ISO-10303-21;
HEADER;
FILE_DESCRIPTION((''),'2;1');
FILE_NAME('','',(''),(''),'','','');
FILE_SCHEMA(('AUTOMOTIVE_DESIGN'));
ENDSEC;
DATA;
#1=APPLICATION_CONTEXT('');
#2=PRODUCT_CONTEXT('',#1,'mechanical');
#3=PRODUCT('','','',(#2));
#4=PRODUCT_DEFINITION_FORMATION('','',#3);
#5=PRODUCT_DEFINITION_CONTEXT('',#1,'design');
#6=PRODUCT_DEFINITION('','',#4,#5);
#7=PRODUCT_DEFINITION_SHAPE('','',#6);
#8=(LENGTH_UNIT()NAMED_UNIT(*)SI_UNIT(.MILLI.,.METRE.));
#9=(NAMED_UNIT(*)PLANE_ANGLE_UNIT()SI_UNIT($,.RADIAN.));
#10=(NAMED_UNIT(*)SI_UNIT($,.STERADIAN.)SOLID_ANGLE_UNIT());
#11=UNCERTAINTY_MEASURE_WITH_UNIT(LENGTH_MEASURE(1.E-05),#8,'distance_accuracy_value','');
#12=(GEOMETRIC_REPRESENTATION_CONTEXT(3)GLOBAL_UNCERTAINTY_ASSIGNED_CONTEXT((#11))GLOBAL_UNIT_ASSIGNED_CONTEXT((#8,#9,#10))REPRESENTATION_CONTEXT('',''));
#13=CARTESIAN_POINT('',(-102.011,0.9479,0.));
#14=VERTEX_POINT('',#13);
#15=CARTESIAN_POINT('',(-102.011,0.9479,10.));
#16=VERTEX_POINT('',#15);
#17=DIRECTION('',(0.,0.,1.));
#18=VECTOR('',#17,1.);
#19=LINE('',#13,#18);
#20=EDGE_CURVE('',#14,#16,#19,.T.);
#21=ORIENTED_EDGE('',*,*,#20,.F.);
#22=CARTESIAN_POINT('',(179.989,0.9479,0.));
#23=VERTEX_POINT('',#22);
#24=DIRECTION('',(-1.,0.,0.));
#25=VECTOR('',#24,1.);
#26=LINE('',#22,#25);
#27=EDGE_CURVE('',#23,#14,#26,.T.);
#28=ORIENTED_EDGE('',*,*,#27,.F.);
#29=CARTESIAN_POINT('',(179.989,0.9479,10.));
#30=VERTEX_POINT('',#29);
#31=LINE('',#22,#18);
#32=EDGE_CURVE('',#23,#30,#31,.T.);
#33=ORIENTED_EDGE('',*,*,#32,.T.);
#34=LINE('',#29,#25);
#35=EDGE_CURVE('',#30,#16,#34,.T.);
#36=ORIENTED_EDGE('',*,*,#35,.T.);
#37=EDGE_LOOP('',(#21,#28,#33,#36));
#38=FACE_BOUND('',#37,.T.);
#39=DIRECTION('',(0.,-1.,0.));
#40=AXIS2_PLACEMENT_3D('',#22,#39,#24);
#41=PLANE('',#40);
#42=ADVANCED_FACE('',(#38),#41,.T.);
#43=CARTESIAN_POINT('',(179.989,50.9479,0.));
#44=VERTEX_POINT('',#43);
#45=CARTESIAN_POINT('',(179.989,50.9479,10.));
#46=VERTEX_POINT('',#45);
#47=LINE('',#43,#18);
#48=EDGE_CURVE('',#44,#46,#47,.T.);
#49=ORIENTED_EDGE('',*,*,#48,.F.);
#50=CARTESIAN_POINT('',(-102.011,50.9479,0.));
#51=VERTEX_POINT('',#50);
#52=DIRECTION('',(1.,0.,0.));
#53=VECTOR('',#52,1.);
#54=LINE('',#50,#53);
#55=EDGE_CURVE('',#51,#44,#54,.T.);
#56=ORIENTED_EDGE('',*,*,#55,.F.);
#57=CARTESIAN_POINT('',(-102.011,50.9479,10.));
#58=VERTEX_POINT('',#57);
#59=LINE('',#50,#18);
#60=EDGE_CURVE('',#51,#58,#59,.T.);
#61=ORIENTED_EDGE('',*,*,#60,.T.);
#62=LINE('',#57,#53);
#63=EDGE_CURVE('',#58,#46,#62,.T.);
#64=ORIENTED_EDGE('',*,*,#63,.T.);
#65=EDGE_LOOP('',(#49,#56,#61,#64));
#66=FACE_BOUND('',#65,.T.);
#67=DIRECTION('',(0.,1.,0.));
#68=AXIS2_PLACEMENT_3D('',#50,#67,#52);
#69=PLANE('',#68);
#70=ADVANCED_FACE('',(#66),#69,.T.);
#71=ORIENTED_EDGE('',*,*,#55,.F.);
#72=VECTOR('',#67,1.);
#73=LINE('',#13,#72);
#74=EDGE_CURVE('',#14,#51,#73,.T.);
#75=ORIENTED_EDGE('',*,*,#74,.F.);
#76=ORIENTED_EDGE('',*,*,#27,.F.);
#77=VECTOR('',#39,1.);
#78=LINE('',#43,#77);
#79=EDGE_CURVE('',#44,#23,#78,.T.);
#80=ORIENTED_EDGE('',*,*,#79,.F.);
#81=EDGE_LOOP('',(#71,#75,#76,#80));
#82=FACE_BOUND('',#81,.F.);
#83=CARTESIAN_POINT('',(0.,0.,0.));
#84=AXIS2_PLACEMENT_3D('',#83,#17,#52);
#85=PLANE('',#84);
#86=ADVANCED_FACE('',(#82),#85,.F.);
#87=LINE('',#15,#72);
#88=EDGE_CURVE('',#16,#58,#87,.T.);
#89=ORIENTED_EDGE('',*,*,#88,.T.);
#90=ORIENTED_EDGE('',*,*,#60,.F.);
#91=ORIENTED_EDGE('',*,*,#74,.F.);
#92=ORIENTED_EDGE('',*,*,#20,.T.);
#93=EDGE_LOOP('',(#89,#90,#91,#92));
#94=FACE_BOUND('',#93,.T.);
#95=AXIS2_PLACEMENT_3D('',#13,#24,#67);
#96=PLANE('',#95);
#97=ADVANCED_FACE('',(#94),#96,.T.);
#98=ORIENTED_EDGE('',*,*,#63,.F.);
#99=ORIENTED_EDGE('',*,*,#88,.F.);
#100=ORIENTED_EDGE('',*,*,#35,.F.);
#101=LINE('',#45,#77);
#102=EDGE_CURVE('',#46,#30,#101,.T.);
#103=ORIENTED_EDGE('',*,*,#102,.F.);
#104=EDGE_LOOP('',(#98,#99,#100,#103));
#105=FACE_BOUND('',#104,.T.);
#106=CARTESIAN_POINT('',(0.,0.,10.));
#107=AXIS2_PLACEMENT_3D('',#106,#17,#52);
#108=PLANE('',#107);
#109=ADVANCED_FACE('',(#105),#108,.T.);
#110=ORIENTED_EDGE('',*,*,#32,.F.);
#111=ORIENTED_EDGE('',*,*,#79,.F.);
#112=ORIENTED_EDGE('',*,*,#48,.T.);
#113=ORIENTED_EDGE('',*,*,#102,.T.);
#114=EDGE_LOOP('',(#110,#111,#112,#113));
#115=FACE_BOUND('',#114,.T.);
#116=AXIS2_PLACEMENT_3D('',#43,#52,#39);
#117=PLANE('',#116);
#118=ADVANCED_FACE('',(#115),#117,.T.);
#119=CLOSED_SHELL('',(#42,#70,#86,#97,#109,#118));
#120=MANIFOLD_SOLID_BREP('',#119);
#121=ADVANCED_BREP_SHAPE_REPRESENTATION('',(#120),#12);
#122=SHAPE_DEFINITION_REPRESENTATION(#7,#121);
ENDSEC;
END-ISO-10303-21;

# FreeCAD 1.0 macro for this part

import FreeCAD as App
import Part
import Sketcher
from FreeCAD import Vector
Q = App.Units.Quantity


def add_polygon(sketch, points):
    """Adds a closed chain of lines whose ends are joined by coincident constraints."""
    first, n = sketch.GeometryCount, len(points)
    for a, b in zip(points, points[1:] + points[:1]):
        sketch.addGeometry(Part.LineSegment(App.Vector(*a, 0), App.Vector(*b, 0)), False)
    for i in range(n):
        sketch.addConstraint(Sketcher.Constraint("Coincident", first + i, 2, first + (i + 1) % n, 1))

doc = App.newDocument("Part")
body = doc.addObject("PartDesign::Body", "Body")

# Sketch on XY plane
sketch1 = body.newObject("Sketcher::SketchObject", "Sketch")
sketch1.AttachmentSupport = (doc.getObject("XY_Plane"), [""])
sketch1.MapMode = "FlatFace"
add_polygon(sketch1, [(179.989, 50.9479), (-102.011, 50.9479), (-102.011, 0.9479), (179.989, 0.9479)])  # lines 0-3
sketch1.addConstraint([
    Sketcher.Constraint("Horizontal", 0),
    Sketcher.Constraint("Vertical", 1),
    Sketcher.Constraint("Horizontal", 2),
    Sketcher.Constraint("Vertical", 3),
    Sketcher.Constraint("DistanceY", 1, 2, 1, 1, Q("50 mm")),
    Sketcher.Constraint("DistanceX", 0, 2, 0, 1, Q("282 mm")),
    Sketcher.Constraint("DistanceX", 0, 2, -1, 1, Q("102.011 mm")),
    Sketcher.Constraint("DistanceY", -1, 1, 0, 2, Q("50.948 mm")),
])
pad1 = body.newObject("PartDesign::Pad", "Pad")
pad1.Profile = sketch1
pad1.Length = 10

doc.recompute()
